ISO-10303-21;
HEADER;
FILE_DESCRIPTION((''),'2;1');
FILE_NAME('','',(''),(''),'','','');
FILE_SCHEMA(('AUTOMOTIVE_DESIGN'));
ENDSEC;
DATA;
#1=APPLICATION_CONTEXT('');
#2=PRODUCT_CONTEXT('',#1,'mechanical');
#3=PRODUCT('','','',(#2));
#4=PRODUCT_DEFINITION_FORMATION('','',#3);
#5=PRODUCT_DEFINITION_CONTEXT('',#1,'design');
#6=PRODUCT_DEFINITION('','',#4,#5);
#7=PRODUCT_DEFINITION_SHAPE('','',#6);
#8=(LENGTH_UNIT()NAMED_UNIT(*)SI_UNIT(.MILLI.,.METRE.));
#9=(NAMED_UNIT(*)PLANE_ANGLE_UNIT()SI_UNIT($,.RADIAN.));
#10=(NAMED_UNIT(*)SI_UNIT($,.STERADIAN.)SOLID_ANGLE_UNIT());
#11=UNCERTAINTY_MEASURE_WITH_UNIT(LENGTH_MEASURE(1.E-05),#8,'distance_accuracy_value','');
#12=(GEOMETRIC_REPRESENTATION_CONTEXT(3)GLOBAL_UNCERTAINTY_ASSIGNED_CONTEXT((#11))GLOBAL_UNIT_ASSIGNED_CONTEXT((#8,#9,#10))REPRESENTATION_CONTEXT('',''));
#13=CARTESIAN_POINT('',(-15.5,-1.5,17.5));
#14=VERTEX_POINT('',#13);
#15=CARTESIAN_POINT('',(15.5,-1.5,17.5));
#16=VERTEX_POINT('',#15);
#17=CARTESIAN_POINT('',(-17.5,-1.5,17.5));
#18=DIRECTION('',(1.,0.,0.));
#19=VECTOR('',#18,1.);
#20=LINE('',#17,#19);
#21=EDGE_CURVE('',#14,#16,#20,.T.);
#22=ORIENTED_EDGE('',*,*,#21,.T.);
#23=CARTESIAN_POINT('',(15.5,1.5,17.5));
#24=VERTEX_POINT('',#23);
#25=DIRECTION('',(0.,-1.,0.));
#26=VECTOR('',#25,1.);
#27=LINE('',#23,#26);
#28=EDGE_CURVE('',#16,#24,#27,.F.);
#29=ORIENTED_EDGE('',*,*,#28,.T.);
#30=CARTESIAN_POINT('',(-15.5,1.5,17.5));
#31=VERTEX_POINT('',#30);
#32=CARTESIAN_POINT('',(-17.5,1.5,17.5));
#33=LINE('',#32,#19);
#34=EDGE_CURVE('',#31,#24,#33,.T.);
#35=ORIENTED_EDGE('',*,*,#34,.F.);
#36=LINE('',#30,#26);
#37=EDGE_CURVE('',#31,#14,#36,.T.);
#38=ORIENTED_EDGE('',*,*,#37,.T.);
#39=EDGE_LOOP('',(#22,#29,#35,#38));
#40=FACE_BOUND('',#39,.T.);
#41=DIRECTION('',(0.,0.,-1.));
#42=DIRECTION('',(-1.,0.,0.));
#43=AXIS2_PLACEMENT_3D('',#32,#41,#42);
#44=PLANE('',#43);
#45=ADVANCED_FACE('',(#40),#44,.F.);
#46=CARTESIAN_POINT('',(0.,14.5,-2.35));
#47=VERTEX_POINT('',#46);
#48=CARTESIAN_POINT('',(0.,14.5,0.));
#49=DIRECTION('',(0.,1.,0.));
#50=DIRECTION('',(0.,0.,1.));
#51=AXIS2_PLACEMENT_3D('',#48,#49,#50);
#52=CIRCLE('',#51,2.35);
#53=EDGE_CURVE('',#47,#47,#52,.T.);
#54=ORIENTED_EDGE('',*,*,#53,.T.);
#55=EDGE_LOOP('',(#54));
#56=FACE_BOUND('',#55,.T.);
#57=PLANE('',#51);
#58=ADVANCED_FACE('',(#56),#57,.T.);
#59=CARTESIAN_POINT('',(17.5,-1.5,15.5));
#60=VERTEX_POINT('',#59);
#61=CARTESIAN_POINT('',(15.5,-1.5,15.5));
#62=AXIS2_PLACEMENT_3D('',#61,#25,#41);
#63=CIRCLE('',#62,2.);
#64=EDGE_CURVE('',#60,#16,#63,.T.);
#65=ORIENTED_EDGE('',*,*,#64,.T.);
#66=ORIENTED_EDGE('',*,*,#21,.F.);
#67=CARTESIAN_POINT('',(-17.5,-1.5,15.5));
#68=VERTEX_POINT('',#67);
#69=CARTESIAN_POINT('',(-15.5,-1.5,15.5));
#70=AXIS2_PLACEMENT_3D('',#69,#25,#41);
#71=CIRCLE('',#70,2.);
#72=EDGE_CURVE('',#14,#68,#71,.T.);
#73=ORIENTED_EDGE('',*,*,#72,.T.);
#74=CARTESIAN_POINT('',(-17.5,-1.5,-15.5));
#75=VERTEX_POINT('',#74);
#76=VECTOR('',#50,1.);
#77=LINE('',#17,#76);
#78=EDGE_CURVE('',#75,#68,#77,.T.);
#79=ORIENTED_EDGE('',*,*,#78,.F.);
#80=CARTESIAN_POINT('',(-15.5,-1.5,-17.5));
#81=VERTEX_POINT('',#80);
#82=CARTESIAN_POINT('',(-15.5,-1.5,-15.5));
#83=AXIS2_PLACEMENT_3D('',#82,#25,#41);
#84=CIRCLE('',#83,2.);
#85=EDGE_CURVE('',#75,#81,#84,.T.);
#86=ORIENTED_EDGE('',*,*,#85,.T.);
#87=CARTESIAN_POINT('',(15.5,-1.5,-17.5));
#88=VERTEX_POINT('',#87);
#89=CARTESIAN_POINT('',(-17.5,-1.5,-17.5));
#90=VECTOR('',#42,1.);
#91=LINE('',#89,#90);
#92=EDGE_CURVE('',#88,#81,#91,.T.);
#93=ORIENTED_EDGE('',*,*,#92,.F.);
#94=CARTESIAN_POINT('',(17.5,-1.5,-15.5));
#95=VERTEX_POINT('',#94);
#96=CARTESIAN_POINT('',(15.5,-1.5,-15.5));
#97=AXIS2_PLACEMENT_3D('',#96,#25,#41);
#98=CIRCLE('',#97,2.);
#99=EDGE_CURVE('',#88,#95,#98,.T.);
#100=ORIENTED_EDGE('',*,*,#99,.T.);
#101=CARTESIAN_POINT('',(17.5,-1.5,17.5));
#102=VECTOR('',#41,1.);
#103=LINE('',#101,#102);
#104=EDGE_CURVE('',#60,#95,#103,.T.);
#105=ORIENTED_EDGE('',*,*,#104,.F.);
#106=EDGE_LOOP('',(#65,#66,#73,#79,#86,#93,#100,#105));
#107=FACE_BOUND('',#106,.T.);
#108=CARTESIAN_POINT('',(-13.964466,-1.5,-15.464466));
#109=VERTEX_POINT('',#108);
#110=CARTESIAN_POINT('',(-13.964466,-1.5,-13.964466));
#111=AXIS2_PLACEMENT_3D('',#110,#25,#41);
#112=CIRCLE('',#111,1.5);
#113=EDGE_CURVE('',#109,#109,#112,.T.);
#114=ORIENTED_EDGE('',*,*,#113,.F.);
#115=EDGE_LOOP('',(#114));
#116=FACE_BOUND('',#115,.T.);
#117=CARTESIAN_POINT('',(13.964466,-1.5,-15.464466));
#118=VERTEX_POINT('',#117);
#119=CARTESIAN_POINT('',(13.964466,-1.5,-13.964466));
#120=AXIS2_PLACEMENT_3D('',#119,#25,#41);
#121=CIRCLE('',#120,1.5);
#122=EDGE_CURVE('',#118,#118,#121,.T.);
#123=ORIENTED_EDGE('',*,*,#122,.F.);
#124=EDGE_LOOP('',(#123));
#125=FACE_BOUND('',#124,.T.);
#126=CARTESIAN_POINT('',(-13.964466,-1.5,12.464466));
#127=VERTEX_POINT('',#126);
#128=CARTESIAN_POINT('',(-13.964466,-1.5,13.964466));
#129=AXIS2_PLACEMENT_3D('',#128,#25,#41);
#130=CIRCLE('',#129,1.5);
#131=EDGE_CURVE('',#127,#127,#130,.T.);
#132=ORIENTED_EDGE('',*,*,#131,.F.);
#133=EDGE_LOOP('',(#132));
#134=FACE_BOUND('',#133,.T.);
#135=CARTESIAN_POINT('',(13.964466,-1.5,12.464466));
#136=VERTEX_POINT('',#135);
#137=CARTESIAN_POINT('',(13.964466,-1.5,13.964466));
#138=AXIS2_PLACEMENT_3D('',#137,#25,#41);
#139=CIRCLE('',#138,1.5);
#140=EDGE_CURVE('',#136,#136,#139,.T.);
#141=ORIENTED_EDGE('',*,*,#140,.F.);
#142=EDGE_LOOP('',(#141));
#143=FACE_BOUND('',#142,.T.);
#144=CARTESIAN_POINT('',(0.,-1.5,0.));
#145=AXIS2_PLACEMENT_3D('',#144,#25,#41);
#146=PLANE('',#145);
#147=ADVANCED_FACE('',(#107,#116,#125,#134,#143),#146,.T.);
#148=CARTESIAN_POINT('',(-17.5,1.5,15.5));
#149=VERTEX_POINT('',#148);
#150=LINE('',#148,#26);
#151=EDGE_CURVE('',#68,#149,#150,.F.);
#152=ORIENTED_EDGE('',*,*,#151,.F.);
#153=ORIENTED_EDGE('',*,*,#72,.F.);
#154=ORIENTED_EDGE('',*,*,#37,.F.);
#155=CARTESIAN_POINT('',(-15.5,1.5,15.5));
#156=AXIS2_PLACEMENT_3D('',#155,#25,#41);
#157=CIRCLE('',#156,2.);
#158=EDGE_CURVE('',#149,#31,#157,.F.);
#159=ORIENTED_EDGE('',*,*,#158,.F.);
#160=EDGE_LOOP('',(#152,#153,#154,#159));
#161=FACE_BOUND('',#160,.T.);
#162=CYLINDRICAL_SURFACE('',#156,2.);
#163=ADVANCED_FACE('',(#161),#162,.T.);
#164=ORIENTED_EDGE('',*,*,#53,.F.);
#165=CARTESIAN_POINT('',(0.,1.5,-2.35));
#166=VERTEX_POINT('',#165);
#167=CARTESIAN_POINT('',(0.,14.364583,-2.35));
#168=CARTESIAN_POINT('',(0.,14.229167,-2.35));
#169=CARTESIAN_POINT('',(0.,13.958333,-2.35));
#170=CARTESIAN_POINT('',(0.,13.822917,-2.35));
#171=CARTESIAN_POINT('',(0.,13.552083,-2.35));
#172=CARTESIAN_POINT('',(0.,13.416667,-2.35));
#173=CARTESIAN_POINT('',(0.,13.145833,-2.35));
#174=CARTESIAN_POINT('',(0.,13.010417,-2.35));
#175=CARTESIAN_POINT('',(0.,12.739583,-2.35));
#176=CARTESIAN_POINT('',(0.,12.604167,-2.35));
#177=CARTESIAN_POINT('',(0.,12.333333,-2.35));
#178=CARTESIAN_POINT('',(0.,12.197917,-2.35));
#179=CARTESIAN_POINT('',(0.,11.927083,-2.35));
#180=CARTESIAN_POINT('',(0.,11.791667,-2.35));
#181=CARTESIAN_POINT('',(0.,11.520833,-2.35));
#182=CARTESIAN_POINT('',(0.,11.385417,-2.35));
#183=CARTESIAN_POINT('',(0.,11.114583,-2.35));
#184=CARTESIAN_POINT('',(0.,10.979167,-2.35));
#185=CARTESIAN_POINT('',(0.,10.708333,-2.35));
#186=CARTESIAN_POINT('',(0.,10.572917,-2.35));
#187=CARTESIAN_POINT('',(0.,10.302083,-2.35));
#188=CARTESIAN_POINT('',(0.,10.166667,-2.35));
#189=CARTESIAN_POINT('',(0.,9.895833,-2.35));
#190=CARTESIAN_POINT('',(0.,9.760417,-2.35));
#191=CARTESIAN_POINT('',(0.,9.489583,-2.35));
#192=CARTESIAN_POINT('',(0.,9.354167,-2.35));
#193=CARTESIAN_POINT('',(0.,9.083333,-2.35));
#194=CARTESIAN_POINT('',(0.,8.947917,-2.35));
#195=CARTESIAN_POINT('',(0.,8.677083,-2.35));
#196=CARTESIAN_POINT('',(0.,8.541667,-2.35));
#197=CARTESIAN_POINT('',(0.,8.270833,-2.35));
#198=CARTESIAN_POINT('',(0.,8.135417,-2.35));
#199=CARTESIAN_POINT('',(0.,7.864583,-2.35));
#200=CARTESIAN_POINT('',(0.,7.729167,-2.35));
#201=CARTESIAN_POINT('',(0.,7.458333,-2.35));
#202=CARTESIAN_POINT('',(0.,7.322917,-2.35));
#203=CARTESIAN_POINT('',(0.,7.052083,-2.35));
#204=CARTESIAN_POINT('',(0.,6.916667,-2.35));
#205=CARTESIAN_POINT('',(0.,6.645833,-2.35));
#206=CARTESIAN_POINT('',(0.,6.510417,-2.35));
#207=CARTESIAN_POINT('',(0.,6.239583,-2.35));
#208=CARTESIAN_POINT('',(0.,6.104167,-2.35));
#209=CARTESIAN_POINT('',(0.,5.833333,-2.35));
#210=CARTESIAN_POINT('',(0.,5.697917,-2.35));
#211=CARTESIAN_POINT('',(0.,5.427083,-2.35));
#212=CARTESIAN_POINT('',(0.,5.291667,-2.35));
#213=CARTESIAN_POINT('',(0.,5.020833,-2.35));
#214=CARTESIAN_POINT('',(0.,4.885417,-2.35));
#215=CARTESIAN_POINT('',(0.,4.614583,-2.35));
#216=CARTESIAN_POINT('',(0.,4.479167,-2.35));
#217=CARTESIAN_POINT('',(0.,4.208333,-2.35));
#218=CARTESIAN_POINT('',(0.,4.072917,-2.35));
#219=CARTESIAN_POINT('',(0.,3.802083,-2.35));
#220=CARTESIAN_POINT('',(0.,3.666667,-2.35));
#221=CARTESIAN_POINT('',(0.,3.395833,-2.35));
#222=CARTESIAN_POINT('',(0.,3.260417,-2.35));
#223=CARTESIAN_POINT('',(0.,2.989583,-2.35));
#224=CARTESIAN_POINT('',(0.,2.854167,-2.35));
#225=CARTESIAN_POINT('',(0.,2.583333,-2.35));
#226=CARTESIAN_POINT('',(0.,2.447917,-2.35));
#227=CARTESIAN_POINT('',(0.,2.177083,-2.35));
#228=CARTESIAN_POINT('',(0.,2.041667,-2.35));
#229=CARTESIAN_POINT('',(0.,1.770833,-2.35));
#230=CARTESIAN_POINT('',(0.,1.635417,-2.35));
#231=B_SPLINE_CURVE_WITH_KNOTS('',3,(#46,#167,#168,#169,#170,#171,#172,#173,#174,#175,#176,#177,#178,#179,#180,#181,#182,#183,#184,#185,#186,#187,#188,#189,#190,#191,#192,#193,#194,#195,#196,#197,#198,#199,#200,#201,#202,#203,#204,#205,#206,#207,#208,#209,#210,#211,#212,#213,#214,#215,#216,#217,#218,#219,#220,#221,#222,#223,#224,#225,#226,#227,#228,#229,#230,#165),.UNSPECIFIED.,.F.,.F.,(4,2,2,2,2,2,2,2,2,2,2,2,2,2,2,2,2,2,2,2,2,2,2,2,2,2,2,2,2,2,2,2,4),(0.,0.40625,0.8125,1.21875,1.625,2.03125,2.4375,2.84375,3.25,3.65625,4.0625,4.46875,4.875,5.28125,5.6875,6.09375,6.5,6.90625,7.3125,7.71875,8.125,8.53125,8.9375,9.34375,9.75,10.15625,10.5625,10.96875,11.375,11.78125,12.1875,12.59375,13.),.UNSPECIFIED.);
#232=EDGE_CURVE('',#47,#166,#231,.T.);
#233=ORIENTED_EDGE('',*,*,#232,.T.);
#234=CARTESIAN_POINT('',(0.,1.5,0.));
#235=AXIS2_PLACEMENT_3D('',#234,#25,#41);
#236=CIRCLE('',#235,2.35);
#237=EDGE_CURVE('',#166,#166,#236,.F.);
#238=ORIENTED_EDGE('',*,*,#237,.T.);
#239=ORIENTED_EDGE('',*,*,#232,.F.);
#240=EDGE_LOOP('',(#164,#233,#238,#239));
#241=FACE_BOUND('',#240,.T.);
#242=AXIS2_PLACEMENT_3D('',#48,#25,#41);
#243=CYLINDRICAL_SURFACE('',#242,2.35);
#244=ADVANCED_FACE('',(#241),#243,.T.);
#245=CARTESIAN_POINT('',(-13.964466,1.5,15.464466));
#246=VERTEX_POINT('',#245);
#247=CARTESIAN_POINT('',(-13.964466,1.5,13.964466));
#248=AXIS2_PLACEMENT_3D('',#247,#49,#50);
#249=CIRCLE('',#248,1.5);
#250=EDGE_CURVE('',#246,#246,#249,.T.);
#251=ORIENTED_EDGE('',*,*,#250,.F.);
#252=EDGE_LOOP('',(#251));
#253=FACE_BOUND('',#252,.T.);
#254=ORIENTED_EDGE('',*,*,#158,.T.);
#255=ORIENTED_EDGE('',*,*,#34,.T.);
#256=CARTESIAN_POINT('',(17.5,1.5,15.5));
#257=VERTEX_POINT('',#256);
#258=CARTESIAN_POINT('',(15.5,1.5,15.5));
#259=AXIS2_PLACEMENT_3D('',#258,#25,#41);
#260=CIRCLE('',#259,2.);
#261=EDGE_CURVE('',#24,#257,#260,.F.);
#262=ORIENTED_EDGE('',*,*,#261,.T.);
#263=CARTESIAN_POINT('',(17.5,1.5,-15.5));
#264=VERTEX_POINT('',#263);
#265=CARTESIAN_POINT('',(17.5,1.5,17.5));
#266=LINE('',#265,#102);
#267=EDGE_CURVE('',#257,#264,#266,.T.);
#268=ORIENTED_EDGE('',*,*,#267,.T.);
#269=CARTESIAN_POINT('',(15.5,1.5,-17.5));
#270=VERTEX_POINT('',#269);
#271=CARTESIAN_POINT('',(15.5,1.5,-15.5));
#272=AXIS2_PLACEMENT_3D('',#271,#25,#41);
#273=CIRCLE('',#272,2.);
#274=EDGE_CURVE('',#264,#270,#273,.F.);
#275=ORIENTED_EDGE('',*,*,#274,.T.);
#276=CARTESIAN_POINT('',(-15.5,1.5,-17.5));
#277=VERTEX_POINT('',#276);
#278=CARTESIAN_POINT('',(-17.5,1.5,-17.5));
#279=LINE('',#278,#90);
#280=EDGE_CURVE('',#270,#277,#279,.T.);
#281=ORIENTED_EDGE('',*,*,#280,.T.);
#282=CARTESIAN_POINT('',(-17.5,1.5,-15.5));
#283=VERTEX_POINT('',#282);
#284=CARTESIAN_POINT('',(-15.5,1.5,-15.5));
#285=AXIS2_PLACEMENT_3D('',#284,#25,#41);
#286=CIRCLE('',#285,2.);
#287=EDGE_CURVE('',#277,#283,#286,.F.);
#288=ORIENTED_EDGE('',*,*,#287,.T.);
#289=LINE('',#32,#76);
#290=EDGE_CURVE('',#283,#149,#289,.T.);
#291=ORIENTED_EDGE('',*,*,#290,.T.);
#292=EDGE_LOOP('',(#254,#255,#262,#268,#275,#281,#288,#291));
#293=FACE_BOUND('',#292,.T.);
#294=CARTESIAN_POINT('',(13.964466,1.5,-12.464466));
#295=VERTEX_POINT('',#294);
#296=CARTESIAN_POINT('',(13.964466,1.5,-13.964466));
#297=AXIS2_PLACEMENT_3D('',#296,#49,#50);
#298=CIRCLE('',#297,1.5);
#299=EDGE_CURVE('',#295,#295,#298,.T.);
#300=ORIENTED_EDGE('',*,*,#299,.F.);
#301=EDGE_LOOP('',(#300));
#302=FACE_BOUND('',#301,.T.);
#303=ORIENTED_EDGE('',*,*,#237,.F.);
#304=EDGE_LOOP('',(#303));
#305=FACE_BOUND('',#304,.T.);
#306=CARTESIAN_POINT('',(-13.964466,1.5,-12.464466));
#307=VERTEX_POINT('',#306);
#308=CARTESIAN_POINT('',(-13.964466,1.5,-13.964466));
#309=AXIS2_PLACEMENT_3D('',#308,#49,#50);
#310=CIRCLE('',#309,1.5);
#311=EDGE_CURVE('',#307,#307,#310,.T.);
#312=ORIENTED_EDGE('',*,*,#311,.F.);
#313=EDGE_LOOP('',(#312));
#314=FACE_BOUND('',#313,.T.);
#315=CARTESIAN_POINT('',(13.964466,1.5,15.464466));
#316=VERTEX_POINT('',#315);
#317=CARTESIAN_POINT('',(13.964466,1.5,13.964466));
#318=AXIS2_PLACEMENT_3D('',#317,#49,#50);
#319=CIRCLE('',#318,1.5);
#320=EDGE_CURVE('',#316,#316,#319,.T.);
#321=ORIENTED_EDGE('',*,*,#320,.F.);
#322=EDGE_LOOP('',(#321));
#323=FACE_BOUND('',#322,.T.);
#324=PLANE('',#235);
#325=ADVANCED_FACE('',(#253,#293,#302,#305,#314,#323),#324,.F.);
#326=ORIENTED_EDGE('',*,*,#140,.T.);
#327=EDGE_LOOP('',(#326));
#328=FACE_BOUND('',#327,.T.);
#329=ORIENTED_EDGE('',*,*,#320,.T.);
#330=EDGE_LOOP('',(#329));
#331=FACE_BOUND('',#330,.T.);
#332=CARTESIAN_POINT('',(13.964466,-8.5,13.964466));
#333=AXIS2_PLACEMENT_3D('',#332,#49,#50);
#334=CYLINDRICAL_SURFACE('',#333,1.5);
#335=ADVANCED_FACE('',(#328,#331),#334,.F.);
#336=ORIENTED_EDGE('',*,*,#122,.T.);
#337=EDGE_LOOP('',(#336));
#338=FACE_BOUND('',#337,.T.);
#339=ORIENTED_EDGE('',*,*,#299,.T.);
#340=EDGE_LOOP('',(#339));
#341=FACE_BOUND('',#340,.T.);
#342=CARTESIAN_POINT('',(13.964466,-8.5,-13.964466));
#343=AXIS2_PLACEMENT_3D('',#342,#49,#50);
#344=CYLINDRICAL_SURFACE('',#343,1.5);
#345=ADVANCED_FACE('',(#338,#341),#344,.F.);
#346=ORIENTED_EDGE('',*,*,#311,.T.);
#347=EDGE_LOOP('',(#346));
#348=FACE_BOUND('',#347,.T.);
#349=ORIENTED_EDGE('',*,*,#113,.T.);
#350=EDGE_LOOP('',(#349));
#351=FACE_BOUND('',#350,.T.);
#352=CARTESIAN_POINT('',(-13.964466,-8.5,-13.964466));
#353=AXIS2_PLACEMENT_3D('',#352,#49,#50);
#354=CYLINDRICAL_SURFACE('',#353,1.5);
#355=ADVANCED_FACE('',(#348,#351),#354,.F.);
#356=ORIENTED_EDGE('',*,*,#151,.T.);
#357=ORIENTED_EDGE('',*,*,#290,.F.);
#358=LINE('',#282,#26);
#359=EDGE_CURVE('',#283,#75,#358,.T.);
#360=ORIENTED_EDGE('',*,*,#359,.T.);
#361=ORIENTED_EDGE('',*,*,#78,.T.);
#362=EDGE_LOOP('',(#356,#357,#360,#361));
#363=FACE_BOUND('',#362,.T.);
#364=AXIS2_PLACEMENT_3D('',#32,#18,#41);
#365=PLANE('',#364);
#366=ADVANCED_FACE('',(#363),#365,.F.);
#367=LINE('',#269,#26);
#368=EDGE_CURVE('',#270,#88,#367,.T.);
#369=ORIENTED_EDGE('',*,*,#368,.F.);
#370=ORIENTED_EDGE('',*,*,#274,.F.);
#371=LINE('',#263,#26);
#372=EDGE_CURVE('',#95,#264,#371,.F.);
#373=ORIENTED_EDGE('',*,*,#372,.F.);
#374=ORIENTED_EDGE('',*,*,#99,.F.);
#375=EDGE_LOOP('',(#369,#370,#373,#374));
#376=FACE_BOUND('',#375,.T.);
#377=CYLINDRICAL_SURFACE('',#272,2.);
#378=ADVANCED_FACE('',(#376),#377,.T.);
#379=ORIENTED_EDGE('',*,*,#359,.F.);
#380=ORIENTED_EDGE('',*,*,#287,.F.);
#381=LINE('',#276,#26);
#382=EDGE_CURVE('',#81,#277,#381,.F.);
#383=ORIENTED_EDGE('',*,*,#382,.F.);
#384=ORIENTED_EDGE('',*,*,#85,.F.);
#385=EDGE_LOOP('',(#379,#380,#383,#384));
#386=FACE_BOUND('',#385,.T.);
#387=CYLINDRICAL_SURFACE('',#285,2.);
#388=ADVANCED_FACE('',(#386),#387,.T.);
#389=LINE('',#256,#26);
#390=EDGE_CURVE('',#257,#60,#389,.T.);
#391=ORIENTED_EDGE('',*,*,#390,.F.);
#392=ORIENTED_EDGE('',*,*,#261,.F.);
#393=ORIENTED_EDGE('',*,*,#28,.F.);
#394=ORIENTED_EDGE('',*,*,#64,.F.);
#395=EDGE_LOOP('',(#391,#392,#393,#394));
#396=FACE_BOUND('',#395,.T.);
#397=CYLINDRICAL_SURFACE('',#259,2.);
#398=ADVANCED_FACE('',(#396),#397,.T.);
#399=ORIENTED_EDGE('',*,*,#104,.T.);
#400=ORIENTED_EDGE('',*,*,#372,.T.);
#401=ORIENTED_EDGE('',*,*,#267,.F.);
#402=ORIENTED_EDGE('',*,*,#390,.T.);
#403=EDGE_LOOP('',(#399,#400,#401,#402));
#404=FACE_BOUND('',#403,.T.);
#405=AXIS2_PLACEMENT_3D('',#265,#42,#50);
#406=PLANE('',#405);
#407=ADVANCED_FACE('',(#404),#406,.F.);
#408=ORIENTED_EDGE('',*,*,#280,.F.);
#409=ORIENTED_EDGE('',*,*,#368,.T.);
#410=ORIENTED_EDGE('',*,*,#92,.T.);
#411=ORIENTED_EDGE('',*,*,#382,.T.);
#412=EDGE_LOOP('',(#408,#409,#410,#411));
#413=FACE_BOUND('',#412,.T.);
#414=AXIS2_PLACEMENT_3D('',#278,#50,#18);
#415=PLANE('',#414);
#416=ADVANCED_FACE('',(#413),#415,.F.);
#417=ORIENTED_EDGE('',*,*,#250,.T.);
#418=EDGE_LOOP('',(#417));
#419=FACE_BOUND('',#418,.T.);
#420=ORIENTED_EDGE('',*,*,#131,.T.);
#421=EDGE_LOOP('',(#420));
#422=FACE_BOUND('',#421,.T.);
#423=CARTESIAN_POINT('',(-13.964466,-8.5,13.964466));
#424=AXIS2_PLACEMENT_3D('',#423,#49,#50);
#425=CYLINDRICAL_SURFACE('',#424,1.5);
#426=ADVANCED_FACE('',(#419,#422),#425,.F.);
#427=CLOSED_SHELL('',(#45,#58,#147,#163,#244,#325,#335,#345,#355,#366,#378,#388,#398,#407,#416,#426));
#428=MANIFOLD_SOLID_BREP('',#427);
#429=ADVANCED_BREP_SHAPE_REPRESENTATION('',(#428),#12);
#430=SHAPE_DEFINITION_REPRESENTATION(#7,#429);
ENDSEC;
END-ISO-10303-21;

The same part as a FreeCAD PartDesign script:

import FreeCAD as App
import Part
import Sketcher
Q = App.Units.Quantity


def edges_at(feature, points):
    """Names of the edges that pass closest to the given points."""
    edges = feature.Shape.Edges
    near = lambda p: min(range(len(edges)), key=lambda i: edges[i].distToShape(Part.Vertex(*p))[0])
    return sorted({f"Edge{near(p) + 1}" for p in points})

doc = App.newDocument("Part")
params = doc.addObject("Spreadsheet::Sheet", "Params")
for row, (alias, value) in enumerate([
    ("sketch1_width", "35 mm"),
    ("pad1_length", "3 mm"),
    ("fillet_radius", "2 mm"),
    ("sketch2_diameter", "4.7 mm"),
    ("pad2_length", "13 mm"),
    ("sketch3_diameter", "3 mm"),
    ("pocket1_length", "10 mm"),
], start=1):
    params.set(f"A{row}", alias)
    params.set(f"B{row}", "=" + value)
    params.setAlias(f"B{row}", alias)

body = doc.addObject("PartDesign::Body", "Body")

# Sketch on XZ plane
sketch1 = body.newObject("Sketcher::SketchObject", "Sketch")
sketch1.AttachmentSupport = (doc.getObject("XZ_Plane"), [""])
sketch1.MapMode = "FlatFace"
sketch1.addGeometry(Part.LineSegment(App.Vector(-18, -18, 0), App.Vector(-18, 18, 0)), False)
sketch1.addGeometry(Part.LineSegment(App.Vector(-18, 18, 0), App.Vector(18, 18, 0)), False)
sketch1.addGeometry(Part.LineSegment(App.Vector(18, 18, 0), App.Vector(18, -18, 0)), False)
sketch1.addGeometry(Part.LineSegment(App.Vector(18, -18, 0), App.Vector(-18, -18, 0)), False)
sketch1.addConstraint(Sketcher.Constraint("Coincident", 0, 2, 1, 1))
sketch1.addConstraint(Sketcher.Constraint("Coincident", 1, 2, 2, 1))
sketch1.addConstraint(Sketcher.Constraint("Coincident", 2, 2, 3, 1))
sketch1.addConstraint(Sketcher.Constraint("Coincident", 3, 2, 0, 1))
sketch1.addConstraint(Sketcher.Constraint("Vertical", 0))
sketch1.addConstraint(Sketcher.Constraint("Horizontal", 1))
sketch1.addConstraint(Sketcher.Constraint("Vertical", 2))
sketch1.addConstraint(Sketcher.Constraint("Horizontal", 3))
sketch1.addConstraint(Sketcher.Constraint("Symmetric", 0, 2, 2, 2, -1, 1))
sketch1.addConstraint(Sketcher.Constraint("Equal", 3, 0))
sketch1.addConstraint(Sketcher.Constraint("DistanceX", 1, 1, 1, 2, Q("35 mm")))
sketch1.setExpression("Constraints[10]", "Params.sketch1_width")
pad1 = body.newObject("PartDesign::Pad", "Pad")
pad1.Profile = sketch1
pad1.setExpression("Length", "Params.pad1_length")
pad1.Midplane = True
doc.recompute()

fillet = body.newObject("PartDesign::Fillet", "Fillet")
fillet.Base = (pad1, edges_at(pad1, [
    (17.5, 0, 17.5),
    (-17.5, 0, 17.5),
    (-17.5, 0, -17.5),
    (17.5, 0, -17.5),
]))
fillet.setExpression("Radius", "Params.fillet_radius")

# Sketch on XZ plane
sketch2 = body.newObject("Sketcher::SketchObject", "Sketch001")
sketch2.AttachmentSupport = (doc.getObject("XZ_Plane"), [""])
sketch2.MapMode = "FlatFace"
sketch2.AttachmentOffset = App.Placement(App.Vector(0, 0, -1.5), App.Rotation())
sketch2.addGeometry(Part.Circle(App.Vector(0, 0, 0), App.Vector(0, 0, 1), 2.4), False)
sketch2.addConstraint(Sketcher.Constraint("Coincident", 0, 3, -1, 1))
sketch2.addConstraint(Sketcher.Constraint("Diameter", 0, Q("4.7 mm")))
sketch2.setExpression("Constraints[1]", "Params.sketch2_diameter")
pad2 = body.newObject("PartDesign::Pad", "Pad001")
pad2.Profile = sketch2
pad2.setExpression("Length", "Params.pad2_length")
pad2.Reversed = True

# Sketch on XZ plane
sketch3 = body.newObject("Sketcher::SketchObject", "Sketch002")
sketch3.AttachmentSupport = (doc.getObject("XZ_Plane"), [""])
sketch3.MapMode = "FlatFace"
sketch3.AttachmentOffset = App.Placement(App.Vector(0, 0, -1.5), App.Rotation())
sketch3.addGeometry(Part.Circle(App.Vector(14, -14, 0), App.Vector(0, 0, 1), 1.5), False)
sketch3.addGeometry(Part.Circle(App.Vector(14, 14, 0), App.Vector(0, 0, 1), 1.5), False)
sketch3.addGeometry(Part.Circle(App.Vector(-14, 14, 0), App.Vector(0, 0, 1), 1.5), False)
sketch3.addGeometry(Part.Circle(App.Vector(-14, -14, 0), App.Vector(0, 0, 1), 1.5), False)
sketch3.addConstraint(Sketcher.Constraint("Equal", 0, 1))
sketch3.addConstraint(Sketcher.Constraint("Equal", 1, 2))
sketch3.addConstraint(Sketcher.Constraint("Equal", 2, 3))
sketch3.addConstraint(Sketcher.Constraint("Symmetric", 0, 3, 2, 3, -1, 1))
sketch3.addConstraint(Sketcher.Constraint("Symmetric", 1, 3, 3, 3, -1, 1))
sketch3.addConstraint(Sketcher.Constraint("Symmetric", 1, 3, 2, 3, -2))
sketch3.addConstraint(Sketcher.Constraint("Diameter", 0, Q("3 mm")))
sketch3.addConstraint(Sketcher.Constraint("DistanceX", -1, 1, 0, 3, Q("13.964466 mm")))
sketch3.addConstraint(Sketcher.Constraint("DistanceY", 0, 3, -1, 1, Q("13.964466 mm")))
sketch3.setExpression("Constraints[6]", "Params.sketch3_diameter")
pocket1 = body.newObject("PartDesign::Pocket", "Pocket")
pocket1.Profile = sketch3
pocket1.setExpression("Length", "Params.pocket1_length")
pocket1.Reversed = True

doc.recompute()
